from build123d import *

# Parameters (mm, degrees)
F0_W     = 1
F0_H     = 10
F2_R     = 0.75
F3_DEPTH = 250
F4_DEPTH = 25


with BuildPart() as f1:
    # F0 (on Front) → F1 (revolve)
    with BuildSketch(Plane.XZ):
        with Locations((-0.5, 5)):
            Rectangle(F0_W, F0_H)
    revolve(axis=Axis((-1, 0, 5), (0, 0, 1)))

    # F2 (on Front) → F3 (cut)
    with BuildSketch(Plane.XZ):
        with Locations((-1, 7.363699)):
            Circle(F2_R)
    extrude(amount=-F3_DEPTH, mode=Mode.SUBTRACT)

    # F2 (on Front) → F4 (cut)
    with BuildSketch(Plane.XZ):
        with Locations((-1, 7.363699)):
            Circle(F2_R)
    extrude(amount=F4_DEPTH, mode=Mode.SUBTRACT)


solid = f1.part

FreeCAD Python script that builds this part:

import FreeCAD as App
import Part
import Sketcher

doc = App.newDocument("Part")
body = doc.addObject("PartDesign::Body", "Body")

# Sketch on XZ plane
sketch1 = doc.addObject("Sketcher::SketchObject", "Sketch")
body.addObject(sketch1)
sketch1.AttachmentSupport = (doc.XZ_Plane, [""])
sketch1.MapMode = "FlatFace"
sketch1.addGeometry(Part.LineSegment(App.Vector(-1, 10, 0), App.Vector(-1, 0, 0)), False)
sketch1.addGeometry(Part.LineSegment(App.Vector(-1, 0, 0), App.Vector(0, 0, 0)), False)
sketch1.addGeometry(Part.LineSegment(App.Vector(0, 0, 0), App.Vector(0, 10, 0)), False)
sketch1.addGeometry(Part.LineSegment(App.Vector(0, 10, 0), App.Vector(-1, 10, 0)), False)
sketch1.addGeometry(Part.LineSegment(App.Vector(-1, 0, 0), App.Vector(-1, 10, 0)), True)  # axis
sketch1.addConstraint(Sketcher.Constraint("Coincident", 0, 2, 1, 1))
sketch1.addConstraint(Sketcher.Constraint("Coincident", 1, 2, 2, 1))
sketch1.addConstraint(Sketcher.Constraint("Coincident", 2, 2, 3, 1))
sketch1.addConstraint(Sketcher.Constraint("Coincident", 3, 2, 0, 1))
sketch1.addConstraint(Sketcher.Constraint("Vertical", 0))
sketch1.addConstraint(Sketcher.Constraint("Horizontal", 1))
sketch1.addConstraint(Sketcher.Constraint("Vertical", 2))
sketch1.addConstraint(Sketcher.Constraint("Horizontal", 3))
sketch1.addConstraint(Sketcher.Constraint("Vertical", 4))
sketch1.addConstraint(Sketcher.Constraint("Coincident", 1, 2, -1, 1))
sketch1.addConstraint(Sketcher.Constraint("Coincident", 4, 1, 0, 2))
sketch1.addConstraint(Sketcher.Constraint("Horizontal", 2, 2, 4, 2))
sketch1.addConstraint(Sketcher.Constraint("DistanceX", 1, 1, 1, 2, 1.0))
sketch1.addConstraint(Sketcher.Constraint("DistanceY", 0, 2, 0, 1, 10.0))
revolution = doc.addObject("PartDesign::Revolution", "Revolution")
body.addObject(revolution)
revolution.Profile = sketch1
revolution.ReferenceAxis = (sketch1, ["Axis0"])
revolution.Angle = 360

# Sketch on XZ plane
sketch2 = doc.addObject("Sketcher::SketchObject", "Sketch001")
body.addObject(sketch2)
sketch2.AttachmentSupport = (doc.XZ_Plane, [""])
sketch2.MapMode = "FlatFace"
sketch2.addGeometry(Part.Circle(App.Vector(-1, 7.4, 0), App.Vector(0, 0, 1), 0.8), False)
sketch2.addConstraint(Sketcher.Constraint("Diameter", 0, 1.5))
sketch2.addConstraint(Sketcher.Constraint("DistanceX", 0, 3, -1, 1, 1.0))
sketch2.addConstraint(Sketcher.Constraint("DistanceY", -1, 1, 0, 3, 7.363699))
pocket1 = doc.addObject("PartDesign::Pocket", "Pocket")
body.addObject(pocket1)
pocket1.Profile = sketch2
pocket1.Length = 250

# Sketch on XZ plane
sketch3 = doc.addObject("Sketcher::SketchObject", "Sketch002")
body.addObject(sketch3)
sketch3.AttachmentSupport = (doc.XZ_Plane, [""])
sketch3.MapMode = "FlatFace"
sketch3.addGeometry(Part.Circle(App.Vector(-1, 7.4, 0), App.Vector(0, 0, 1), 0.8), False)
sketch3.addConstraint(Sketcher.Constraint("Diameter", 0, 1.5))
sketch3.addConstraint(Sketcher.Constraint("DistanceX", 0, 3, -1, 1, 1.0))
sketch3.addConstraint(Sketcher.Constraint("DistanceY", -1, 1, 0, 3, 7.363699))
pocket2 = doc.addObject("PartDesign::Pocket", "Pocket001")
body.addObject(pocket2)
pocket2.Profile = sketch3
pocket2.Length = 25
pocket2.Reversed = True

doc.recompute()
